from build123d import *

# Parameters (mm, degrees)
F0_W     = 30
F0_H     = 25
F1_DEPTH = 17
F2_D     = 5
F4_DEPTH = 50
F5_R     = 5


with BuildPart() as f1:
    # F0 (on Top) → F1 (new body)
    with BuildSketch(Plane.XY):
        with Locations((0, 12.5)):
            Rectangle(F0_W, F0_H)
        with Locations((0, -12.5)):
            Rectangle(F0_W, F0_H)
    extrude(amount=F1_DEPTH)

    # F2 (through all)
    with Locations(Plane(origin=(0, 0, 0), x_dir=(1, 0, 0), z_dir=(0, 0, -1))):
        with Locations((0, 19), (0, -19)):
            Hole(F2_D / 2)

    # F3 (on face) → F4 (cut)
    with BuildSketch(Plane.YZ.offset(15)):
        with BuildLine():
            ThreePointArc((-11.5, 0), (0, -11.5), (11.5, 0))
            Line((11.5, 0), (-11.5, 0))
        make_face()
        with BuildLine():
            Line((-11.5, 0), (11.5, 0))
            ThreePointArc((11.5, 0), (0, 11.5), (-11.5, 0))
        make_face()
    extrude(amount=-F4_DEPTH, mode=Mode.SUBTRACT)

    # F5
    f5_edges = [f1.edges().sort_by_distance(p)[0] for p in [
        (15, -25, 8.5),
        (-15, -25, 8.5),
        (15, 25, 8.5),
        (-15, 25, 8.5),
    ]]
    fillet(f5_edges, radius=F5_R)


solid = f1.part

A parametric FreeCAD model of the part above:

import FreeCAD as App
import Part
import Sketcher
from FreeCAD import Vector
Q = App.Units.Quantity


def edges_at(feature, points):
    """Names of the edges that pass closest to the given points."""
    edges = feature.Shape.Edges
    near = lambda p: min(range(len(edges)), key=lambda i: edges[i].distToShape(Part.Vertex(*p))[0])
    return sorted({f"Edge{near(p) + 1}" for p in points})

doc = App.newDocument("Part")
body = doc.addObject("PartDesign::Body", "Body")

sketch1 = body.newObject("Sketcher::SketchObject", "Sketch")
sketch1.AttachmentSupport = (doc.getObject("XY_Plane"), [""])
sketch1.MapMode = "FlatFace"
sketch1.addGeometry([
    Part.LineSegment(Vector(-15, 25, 0), Vector(-15, -25, 0)),
    Part.LineSegment(Vector(-15, -25, 0), Vector(15, -25, 0)),
    Part.LineSegment(Vector(15, -25, 0), Vector(15, 25, 0)),
    Part.LineSegment(Vector(15, 25, 0), Vector(-15, 25, 0)),
], False)
sketch1.addConstraint([
    Sketcher.Constraint("Coincident", 0, 2, 1, 1),
    Sketcher.Constraint("Coincident", 1, 2, 2, 1),
    Sketcher.Constraint("Coincident", 2, 2, 3, 1),
    Sketcher.Constraint("Coincident", 3, 2, 0, 1),
    Sketcher.Constraint("Vertical", 0),
    Sketcher.Constraint("Horizontal", 1),
    Sketcher.Constraint("Vertical", 2),
    Sketcher.Constraint("Horizontal", 3),
    Sketcher.Constraint("Symmetric", 0, 2, 2, 2, -1, 1),
    Sketcher.Constraint("DistanceX", 1, 1, 1, 2, Q("30 mm")),
    Sketcher.Constraint("DistanceY", 0, 2, 0, 1, Q("50 mm")),
])
pad1 = body.newObject("PartDesign::Pad", "Pad")
pad1.Profile = sketch1
pad1.Length = 17

sketch2 = body.newObject("Sketcher::SketchObject", "Sketch001")
sketch2.AttachmentSupport = (doc.getObject("XY_Plane"), [""])
sketch2.MapMode = "FlatFace"
sketch2.addGeometry([
    Part.Circle(Vector(0, -19, 0), Vector(0, 0, 1), 2.5),
    Part.Circle(Vector(0, 19, 0), Vector(0, 0, 1), 2.5),
], False)
sketch2.addConstraint([
    Sketcher.Constraint("Equal", 0, 1),
    Sketcher.Constraint("Symmetric", 0, 3, 1, 3, -1, 1),
    Sketcher.Constraint("PointOnObject", 0, 3, -2),
    Sketcher.Constraint("Diameter", 0, Q("5 mm")),
    Sketcher.Constraint("DistanceY", 0, 3, -1, 1, Q("19 mm")),
])
doc.recompute()
hole = body.newObject("PartDesign::Hole", "Hole")
hole.Profile = sketch2
hole.ThreadType = "None"
hole.Diameter = 5
hole.DepthType = "ThroughAll"
hole.Reversed = True

sketch3 = body.newObject("Sketcher::SketchObject", "Sketch002")
sketch3.AttachmentSupport = (doc.getObject("YZ_Plane"), [""])
sketch3.MapMode = "FlatFace"
sketch3.AttachmentOffset = App.Placement(Vector(0, 0, 15), App.Rotation())
sketch3.addGeometry(Part.Circle(Vector(0, 0, 0), Vector(0, 0, 1), 12), False)
sketch3.addConstraint([
    Sketcher.Constraint("Coincident", 0, 3, -1, 1),
    Sketcher.Constraint("Diameter", 0, Q("23 mm")),
])
pocket1 = body.newObject("PartDesign::Pocket", "Pocket")
pocket1.Profile = sketch3
pocket1.Length = 50
doc.recompute()

fillet = body.newObject("PartDesign::Fillet", "Fillet")
fillet.Base = (pocket1, edges_at(pocket1, [
    (15, -25, 8.5),
    (-15, -25, 8.5),
    (15, 25, 8.5),
    (-15, 25, 8.5),
]))
fillet.Radius = 5

doc.recompute()
